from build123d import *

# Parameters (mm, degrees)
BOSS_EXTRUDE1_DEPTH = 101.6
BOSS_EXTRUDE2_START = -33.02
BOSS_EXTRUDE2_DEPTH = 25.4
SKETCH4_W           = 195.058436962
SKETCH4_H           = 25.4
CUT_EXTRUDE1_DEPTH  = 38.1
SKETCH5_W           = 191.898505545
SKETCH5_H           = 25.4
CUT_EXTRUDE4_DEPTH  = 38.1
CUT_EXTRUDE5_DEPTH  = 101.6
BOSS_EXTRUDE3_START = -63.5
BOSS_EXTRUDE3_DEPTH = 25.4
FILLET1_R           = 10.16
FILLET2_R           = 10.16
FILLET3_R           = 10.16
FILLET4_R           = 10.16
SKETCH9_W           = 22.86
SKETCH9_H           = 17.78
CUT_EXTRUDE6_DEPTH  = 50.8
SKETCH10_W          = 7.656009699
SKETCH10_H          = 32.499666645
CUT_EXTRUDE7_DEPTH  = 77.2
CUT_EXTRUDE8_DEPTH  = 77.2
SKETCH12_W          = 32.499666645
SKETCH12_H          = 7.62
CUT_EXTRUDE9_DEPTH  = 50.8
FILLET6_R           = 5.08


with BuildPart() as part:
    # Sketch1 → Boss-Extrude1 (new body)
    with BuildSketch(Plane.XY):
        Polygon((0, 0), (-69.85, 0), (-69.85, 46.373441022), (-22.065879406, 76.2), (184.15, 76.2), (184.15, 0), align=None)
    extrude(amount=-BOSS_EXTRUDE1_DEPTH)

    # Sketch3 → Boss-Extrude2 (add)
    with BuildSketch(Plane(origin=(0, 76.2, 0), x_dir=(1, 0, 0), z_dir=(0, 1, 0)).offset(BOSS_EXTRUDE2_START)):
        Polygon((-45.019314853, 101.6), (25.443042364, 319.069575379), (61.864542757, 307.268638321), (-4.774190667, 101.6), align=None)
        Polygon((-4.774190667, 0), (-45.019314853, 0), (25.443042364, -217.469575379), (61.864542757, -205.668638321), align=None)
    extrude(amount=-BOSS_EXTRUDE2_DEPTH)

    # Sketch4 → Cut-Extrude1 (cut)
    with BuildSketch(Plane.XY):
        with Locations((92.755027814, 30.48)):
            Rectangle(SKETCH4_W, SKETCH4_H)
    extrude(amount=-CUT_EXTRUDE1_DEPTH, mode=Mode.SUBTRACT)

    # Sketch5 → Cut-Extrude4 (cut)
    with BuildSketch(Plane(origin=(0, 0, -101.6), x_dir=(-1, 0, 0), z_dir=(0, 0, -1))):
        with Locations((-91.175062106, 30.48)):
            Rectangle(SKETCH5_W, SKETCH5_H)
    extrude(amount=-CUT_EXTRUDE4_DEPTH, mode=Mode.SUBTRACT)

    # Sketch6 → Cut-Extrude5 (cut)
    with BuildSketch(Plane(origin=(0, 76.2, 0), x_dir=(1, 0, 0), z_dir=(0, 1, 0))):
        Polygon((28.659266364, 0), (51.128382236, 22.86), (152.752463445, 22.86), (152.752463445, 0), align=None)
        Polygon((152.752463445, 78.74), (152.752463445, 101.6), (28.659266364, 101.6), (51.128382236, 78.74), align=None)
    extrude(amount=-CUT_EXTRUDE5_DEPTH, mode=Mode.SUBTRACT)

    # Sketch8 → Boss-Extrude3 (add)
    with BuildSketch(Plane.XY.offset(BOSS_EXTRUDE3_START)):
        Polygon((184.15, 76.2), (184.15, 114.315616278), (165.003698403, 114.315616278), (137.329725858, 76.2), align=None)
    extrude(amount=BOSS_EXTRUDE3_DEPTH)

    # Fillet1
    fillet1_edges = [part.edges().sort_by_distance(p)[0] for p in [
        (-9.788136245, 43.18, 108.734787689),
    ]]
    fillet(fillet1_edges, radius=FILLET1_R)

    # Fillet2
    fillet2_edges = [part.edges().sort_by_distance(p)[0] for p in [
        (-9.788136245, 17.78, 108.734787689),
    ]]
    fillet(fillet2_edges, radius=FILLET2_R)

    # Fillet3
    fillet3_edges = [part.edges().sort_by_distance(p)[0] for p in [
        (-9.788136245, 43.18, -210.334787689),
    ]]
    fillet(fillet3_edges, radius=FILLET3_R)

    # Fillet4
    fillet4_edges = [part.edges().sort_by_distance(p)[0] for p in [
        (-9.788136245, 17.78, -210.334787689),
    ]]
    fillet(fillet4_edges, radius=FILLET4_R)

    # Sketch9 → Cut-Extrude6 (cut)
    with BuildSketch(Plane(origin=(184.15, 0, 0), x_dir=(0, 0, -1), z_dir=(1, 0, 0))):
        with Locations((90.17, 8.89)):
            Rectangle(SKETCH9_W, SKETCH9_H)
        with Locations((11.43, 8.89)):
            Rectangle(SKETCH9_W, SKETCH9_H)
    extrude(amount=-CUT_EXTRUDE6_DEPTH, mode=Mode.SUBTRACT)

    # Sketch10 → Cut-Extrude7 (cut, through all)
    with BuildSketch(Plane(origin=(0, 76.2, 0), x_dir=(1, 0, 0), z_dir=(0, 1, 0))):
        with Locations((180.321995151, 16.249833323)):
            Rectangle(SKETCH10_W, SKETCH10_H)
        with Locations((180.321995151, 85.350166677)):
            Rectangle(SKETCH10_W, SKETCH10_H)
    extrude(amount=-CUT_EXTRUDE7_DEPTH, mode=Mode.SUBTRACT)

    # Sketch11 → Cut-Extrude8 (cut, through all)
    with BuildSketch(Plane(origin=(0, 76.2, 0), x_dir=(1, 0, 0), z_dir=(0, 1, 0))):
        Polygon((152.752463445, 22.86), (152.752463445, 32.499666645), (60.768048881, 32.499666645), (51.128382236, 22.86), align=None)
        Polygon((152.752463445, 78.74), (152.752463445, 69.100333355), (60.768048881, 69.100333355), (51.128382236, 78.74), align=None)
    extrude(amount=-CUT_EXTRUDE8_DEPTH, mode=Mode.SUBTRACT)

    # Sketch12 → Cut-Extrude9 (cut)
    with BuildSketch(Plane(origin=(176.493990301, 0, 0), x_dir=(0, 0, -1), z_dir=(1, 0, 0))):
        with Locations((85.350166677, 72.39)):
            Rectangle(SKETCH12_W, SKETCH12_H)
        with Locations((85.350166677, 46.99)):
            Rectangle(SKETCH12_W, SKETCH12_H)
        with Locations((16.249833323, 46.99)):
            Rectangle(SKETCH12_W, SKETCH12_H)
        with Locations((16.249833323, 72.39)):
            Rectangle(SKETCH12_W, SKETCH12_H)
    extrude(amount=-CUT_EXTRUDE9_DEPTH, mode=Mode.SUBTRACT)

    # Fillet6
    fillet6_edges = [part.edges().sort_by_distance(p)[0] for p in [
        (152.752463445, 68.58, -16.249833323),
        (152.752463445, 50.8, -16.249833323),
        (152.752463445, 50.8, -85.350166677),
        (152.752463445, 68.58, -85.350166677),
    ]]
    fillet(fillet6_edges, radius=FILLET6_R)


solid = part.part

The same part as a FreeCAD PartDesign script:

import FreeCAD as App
import Part
import Sketcher

V = App.Vector
Q = App.Units.Quantity


def edges_at(feature, points):
    """Names of the edges that pass closest to the given points."""
    edges = feature.Shape.Edges
    near = lambda p: min(range(len(edges)), key=lambda i: edges[i].distToShape(Part.Vertex(*p))[0])
    return sorted({f"Edge{near(p) + 1}" for p in points})


def add_polygon(sketch, points):
    """Adds a closed chain of lines whose ends are joined by coincident constraints."""
    first, n = sketch.GeometryCount, len(points)
    for a, b in zip(points, points[1:] + points[:1]):
        sketch.addGeometry(Part.LineSegment(App.Vector(*a, 0), App.Vector(*b, 0)), False)
    for i in range(n):
        sketch.addConstraint(Sketcher.Constraint("Coincident", first + i, 2, first + (i + 1) % n, 1))

doc = App.newDocument("Part")
body = doc.addObject("PartDesign::Body", "Body")

# Sketch on XY plane
sketch1 = body.newObject("Sketcher::SketchObject", "Sketch")
sketch1.AttachmentSupport = (doc.getObject("XY_Plane"), [""])
sketch1.MapMode = "FlatFace"
add_polygon(sketch1, [(-70, 0), (184, 0), (184, 76), (-22, 76), (-70, 46)])  # lines 0-4
sketch1.addConstraint([
    Sketcher.Constraint("Horizontal", 0),
    Sketcher.Constraint("Vertical", 1),
    Sketcher.Constraint("Horizontal", 2),
    Sketcher.Constraint("Vertical", 4),
    Sketcher.Constraint("PointOnObject", 0, 2, -1),
    Sketcher.Constraint("DistanceX", 0, 1, 0, 2, Q("10 in")),
    Sketcher.Constraint("DistanceY", 1, 1, 1, 2, Q("3 in")),
    Sketcher.Constraint("DistanceX", -1, 1, 0, 2, Q("7.25 in")),
    Sketcher.Constraint("DistanceX", 2, 2, 2, 1, Q("206.215879 mm")),
    Sketcher.Constraint("DistanceY", 4, 2, 4, 1, Q("46.373441 mm")),
])
pad1 = body.newObject("PartDesign::Pad", "Pad")
pad1.Profile = sketch1
pad1.Length = Q("4 in")
pad1.Reversed = True

# Sketch on XZ plane
sketch2 = body.newObject("Sketcher::SketchObject", "Sketch001")
sketch2.AttachmentSupport = (doc.getObject("XZ_Plane"), [""])
sketch2.MapMode = "FlatFace"
sketch2.AttachmentOffset = App.Placement(V(0, 0, -1.7 * 25.4), App.Rotation())
add_polygon(sketch2, [(25, -319), (-45, -102), (-5, -102), (62, -307)])  # lines 0-3
add_polygon(sketch2, [(-5, 0), (-45, 0), (25, 217), (62, 206)])  # lines 4-7
sketch2.addConstraint([
    Sketcher.Constraint("Horizontal", 1),
    Sketcher.Constraint("Horizontal", 4),
    Sketcher.Constraint("PointOnObject", 4, 2, -1),
    Sketcher.Constraint("Parallel", 0, 2),
    Sketcher.Constraint("Perpendicular", 2, 3),
    Sketcher.Constraint("Perpendicular", 5, 6),
    Sketcher.Constraint("Perpendicular", 6, 7),
    Sketcher.Constraint("Vertical", 0, 2, 4, 2),
    Sketcher.Constraint("Vertical", 3, 2, 5, 2),
    Sketcher.Constraint("Vertical", 2, 2, 6, 2),
    Sketcher.Constraint("Vertical", 1, 2, 7, 2),
    Sketcher.Constraint("Distance", 0, Q("9 in")),
    Sketcher.Constraint("DistanceY", 0, 2, -1, 1, Q("4 in")),
    Sketcher.Constraint("DistanceX", 3, 2, 2, 2, Q("36.4215 mm")),
    Sketcher.Constraint("Distance", 3, Q("38.285608 mm")),
    Sketcher.Constraint("DistanceX", 1, 2, -1, 1, Q("4.774191 mm")),
])
pad2 = body.newObject("PartDesign::Pad", "Pad001")
pad2.Profile = sketch2
pad2.Length = Q("1 in")

# Sketch on XY plane
sketch3 = body.newObject("Sketcher::SketchObject", "Sketch002")
sketch3.AttachmentSupport = (doc.getObject("XY_Plane"), [""])
sketch3.MapMode = "FlatFace"
add_polygon(sketch3, [(-5, 43), (-5, 18), (190, 18), (190, 43)])  # lines 0-3
sketch3.addConstraint([
    Sketcher.Constraint("Vertical", 0),
    Sketcher.Constraint("Horizontal", 1),
    Sketcher.Constraint("Vertical", 2),
    Sketcher.Constraint("Horizontal", 3),
    Sketcher.Constraint("DistanceY", 0, 2, 0, 1, Q("1 in")),
    Sketcher.Constraint("DistanceY", -1, 1, 0, 2, Q("0.7 in")),
    Sketcher.Constraint("DistanceX", 1, 1, 1, 2, Q("195.058437 mm")),
    Sketcher.Constraint("DistanceX", 0, 2, -1, 1, Q("4.774191 mm")),
])
pocket1 = body.newObject("PartDesign::Pocket", "Pocket")
pocket1.Profile = sketch3
pocket1.Length = Q("1.5 in")

# Sketch on XY plane
sketch4 = body.newObject("Sketcher::SketchObject", "Sketch003")
sketch4.AttachmentSupport = (doc.getObject("XY_Plane"), [""])
sketch4.MapMode = "FlatFace"
sketch4.AttachmentOffset = App.Placement(V(0, 0, -4 * 25.4), App.Rotation())
add_polygon(sketch4, [(187, 43), (187, 18), (-5, 18), (-5, 43)])  # lines 0-3
sketch4.addConstraint([
    Sketcher.Constraint("Vertical", 0),
    Sketcher.Constraint("Horizontal", 1),
    Sketcher.Constraint("Vertical", 2),
    Sketcher.Constraint("Horizontal", 3),
    Sketcher.Constraint("DistanceY", 0, 2, 0, 1, Q("1 in")),
    Sketcher.Constraint("DistanceY", -1, 1, 0, 2, Q("0.7 in")),
    Sketcher.Constraint("DistanceX", 1, 2, 1, 1, Q("191.898506 mm")),
    Sketcher.Constraint("DistanceX", 1, 2, -1, 1, Q("4.774191 mm")),
])
pocket2 = body.newObject("PartDesign::Pocket", "Pocket001")
pocket2.Profile = sketch4
pocket2.Length = Q("1.5 in")
pocket2.Reversed = True

# Sketch on XZ plane
sketch5 = body.newObject("Sketcher::SketchObject", "Sketch004")
sketch5.AttachmentSupport = (doc.getObject("XZ_Plane"), [""])
sketch5.MapMode = "FlatFace"
sketch5.AttachmentOffset = App.Placement(V(0, 0, -3 * 25.4), App.Rotation())
add_polygon(sketch5, [(51, -23), (29, 0), (153, 0), (153, -23)])  # lines 0-3
add_polygon(sketch5, [(153, -79), (153, -102), (29, -102), (51, -79)])  # lines 4-7
sketch5.addConstraint([
    Sketcher.Constraint("Horizontal", 1),
    Sketcher.Constraint("Vertical", 2),
    Sketcher.Constraint("Horizontal", 3),
    Sketcher.Constraint("Vertical", 4),
    Sketcher.Constraint("Horizontal", 5),
    Sketcher.Constraint("Horizontal", 7),
    Sketcher.Constraint("PointOnObject", 0, 2, -1),
    Sketcher.Constraint("Vertical", 2, 2, 4, 2),
    Sketcher.Constraint("Vertical", 0, 2, 5, 2),
    Sketcher.Constraint("Vertical", 3, 2, 6, 2),
    Sketcher.Constraint("Equal", 2, 4),
    Sketcher.Constraint("DistanceY", 2, 2, 2, 1, Q("0.9 in")),
    Sketcher.Constraint("DistanceY", 4, 2, -1, 1, Q("4 in")),
    Sketcher.Constraint("DistanceX", 3, 2, 3, 1, Q("101.624081 mm")),
    Sketcher.Constraint("DistanceX", 1, 1, 1, 2, Q("124.093197 mm")),
    Sketcher.Constraint("DistanceX", -1, 1, 0, 2, Q("28.659266 mm")),
])
pocket3 = body.newObject("PartDesign::Pocket", "Pocket002")
pocket3.Profile = sketch5
pocket3.Length = Q("4 in")
pocket3.Reversed = True

# Sketch on XY plane
sketch6 = body.newObject("Sketcher::SketchObject", "Sketch005")
sketch6.AttachmentSupport = (doc.getObject("XY_Plane"), [""])
sketch6.MapMode = "FlatFace"
sketch6.AttachmentOffset = App.Placement(V(0, 0, -2.5 * 25.4), App.Rotation())
add_polygon(sketch6, [(184, 76), (184, 114), (165, 114), (137, 76)])  # lines 0-3
sketch6.addConstraint([
    Sketcher.Constraint("Vertical", 0),
    Sketcher.Constraint("Horizontal", 1),
    Sketcher.Constraint("Horizontal", 3),
    Sketcher.Constraint("DistanceY", -1, 1, 2, 2, Q("3 in")),
    Sketcher.Constraint("DistanceX", -1, 1, 0, 2, Q("7.25 in")),
    Sketcher.Constraint("DistanceX", 1, 2, 1, 1, Q("19.146302 mm")),
    Sketcher.Constraint("DistanceX", 3, 1, 3, 2, Q("46.820274 mm")),
    Sketcher.Constraint("DistanceY", 0, 1, 0, 2, Q("38.115616 mm")),
])
pad3 = body.newObject("PartDesign::Pad", "Pad002")
pad3.Profile = sketch6
pad3.Length = Q("1 in")
doc.recompute()

fillet = body.newObject("PartDesign::Fillet", "Fillet")
fillet.Base = (pad3, edges_at(pad3, [(-9.788, 43.18, 108.735)]))
fillet.Radius = Q("0.4 in")
doc.recompute()

fillet2 = body.newObject("PartDesign::Fillet", "Fillet001")
fillet2.Base = (fillet, edges_at(fillet, [(-9.788, 17.78, 108.735)]))
fillet2.Radius = Q("0.4 in")
doc.recompute()

fillet3 = body.newObject("PartDesign::Fillet", "Fillet002")
fillet3.Base = (fillet2, edges_at(fillet2, [(-9.788, 43.18, -210.335)]))
fillet3.Radius = Q("0.4 in")
doc.recompute()

fillet4 = body.newObject("PartDesign::Fillet", "Fillet003")
fillet4.Base = (fillet3, edges_at(fillet3, [(-9.788, 17.78, -210.335)]))
fillet4.Radius = Q("0.4 in")

# Sketch on YZ plane
sketch7 = body.newObject("Sketcher::SketchObject", "Sketch006")
sketch7.AttachmentSupport = (doc.getObject("YZ_Plane"), [""])
sketch7.MapMode = "FlatFace"
sketch7.AttachmentOffset = App.Placement(V(0, 0, 7.25 * 25.4), App.Rotation())
add_polygon(sketch7, [(18, -79), (0, -79), (0, -102), (18, -102)])  # lines 0-3
add_polygon(sketch7, [(18, 0), (0, 0), (0, -23), (18, -23)])  # lines 4-7
sketch7.addConstraint([
    Sketcher.Constraint("Horizontal", 0),
    Sketcher.Constraint("Vertical", 1),
    Sketcher.Constraint("Horizontal", 2),
    Sketcher.Constraint("Vertical", 3),
    Sketcher.Constraint("Horizontal", 4),
    Sketcher.Constraint("Vertical", 5),
    Sketcher.Constraint("Horizontal", 6),
    Sketcher.Constraint("Vertical", 7),
    Sketcher.Constraint("Coincident", 4, 2, -1, 1),
    Sketcher.Constraint("PointOnObject", 0, 2, -2),
    Sketcher.Constraint("Vertical", 3, 2, 6, 2),
    Sketcher.Constraint("Equal", 3, 5),
    Sketcher.Constraint("DistanceX", 0, 2, 0, 1, Q("0.7 in")),
    Sketcher.Constraint("DistanceY", 1, 2, 1, 1, Q("0.9 in")),
    Sketcher.Constraint("DistanceY", 1, 2, -1, 1, Q("4 in")),
])
pocket4 = body.newObject("PartDesign::Pocket", "Pocket003")
pocket4.Profile = sketch7
pocket4.Length = Q("2 in")

# Sketch on XZ plane
sketch8 = body.newObject("Sketcher::SketchObject", "Sketch007")
sketch8.AttachmentSupport = (doc.getObject("XZ_Plane"), [""])
sketch8.MapMode = "FlatFace"
sketch8.AttachmentOffset = App.Placement(V(0, 0, -3 * 25.4), App.Rotation())
add_polygon(sketch8, [(176, -32), (176, 0), (184, 0), (184, -32)])  # lines 0-3
add_polygon(sketch8, [(176, -102), (176, -69), (184, -69), (184, -102)])  # lines 4-7
sketch8.addConstraint([
    Sketcher.Constraint("Vertical", 0),
    Sketcher.Constraint("Horizontal", 1),
    Sketcher.Constraint("Vertical", 2),
    Sketcher.Constraint("Horizontal", 3),
    Sketcher.Constraint("Vertical", 4),
    Sketcher.Constraint("Horizontal", 5),
    Sketcher.Constraint("Vertical", 6),
    Sketcher.Constraint("Horizontal", 7),
    Sketcher.Constraint("PointOnObject", 0, 2, -1),
    Sketcher.Constraint("Vertical", 3, 2, 4, 2),
    Sketcher.Constraint("Vertical", 2, 2, 5, 2),
    Sketcher.Constraint("Equal", 2, 4),
    Sketcher.Constraint("DistanceY", 6, 2, -1, 1, Q("4 in")),
    Sketcher.Constraint("DistanceX", -1, 1, 1, 2, Q("7.25 in")),
    Sketcher.Constraint("DistanceX", 1, 1, 1, 2, Q("7.65601 mm")),
    Sketcher.Constraint("DistanceY", 0, 1, 0, 2, Q("32.499667 mm")),
])
pocket5 = body.newObject("PartDesign::Pocket", "Pocket004")
pocket5.Profile = sketch8
pocket5.Type = "ThroughAll"
pocket5.Reversed = True

# Sketch on XZ plane
sketch9 = body.newObject("Sketcher::SketchObject", "Sketch008")
sketch9.AttachmentSupport = (doc.getObject("XZ_Plane"), [""])
sketch9.MapMode = "FlatFace"
sketch9.AttachmentOffset = App.Placement(V(0, 0, -3 * 25.4), App.Rotation())
add_polygon(sketch9, [(153, -23), (153, -32), (61, -32), (51, -23)])  # lines 0-3
add_polygon(sketch9, [(153, -69), (153, -79), (51, -79), (61, -69)])  # lines 4-7
sketch9.addConstraint([
    Sketcher.Constraint("Vertical", 0),
    Sketcher.Constraint("Horizontal", 1),
    Sketcher.Constraint("Horizontal", 3),
    Sketcher.Constraint("Vertical", 4),
    Sketcher.Constraint("Horizontal", 5),
    Sketcher.Constraint("Horizontal", 7),
    Sketcher.Constraint("Perpendicular", 2, 6),
    Sketcher.Constraint("Vertical", 3, 2, 4, 2),
    Sketcher.Constraint("Vertical", 2, 2, 5, 2),
    Sketcher.Constraint("Vertical", 1, 2, 6, 2),
    Sketcher.Constraint("Equal", 0, 4),
    Sketcher.Constraint("DistanceY", 2, 2, -1, 1, Q("0.9 in")),
    Sketcher.Constraint("DistanceY", 4, 2, -1, 1, Q("3.1 in")),
    Sketcher.Constraint("DistanceX", 3, 1, 3, 2, Q("101.624081 mm")),
    Sketcher.Constraint("DistanceX", 1, 2, 1, 1, Q("91.984415 mm")),
    Sketcher.Constraint("DistanceX", -1, 1, 1, 2, Q("60.768049 mm")),
])
pocket6 = body.newObject("PartDesign::Pocket", "Pocket005")
pocket6.Profile = sketch9
pocket6.Type = "ThroughAll"
pocket6.Reversed = True

# Sketch on YZ plane
sketch10 = body.newObject("Sketcher::SketchObject", "Sketch009")
sketch10.AttachmentSupport = (doc.getObject("YZ_Plane"), [""])
sketch10.MapMode = "FlatFace"
sketch10.AttachmentOffset = App.Placement(V(0, 0, 176.49399), App.Rotation())
add_polygon(sketch10, [(76, -69), (69, -69), (69, -102), (76, -102)])  # lines 0-3
add_polygon(sketch10, [(51, -69), (43, -69), (43, -102), (51, -102)])  # lines 4-7
add_polygon(sketch10, [(51, 0), (43, 0), (43, -32), (51, -32)])  # lines 8-11
add_polygon(sketch10, [(76, 0), (69, 0), (69, -32), (76, -32)])  # lines 12-15
sketch10.addConstraint([
    Sketcher.Constraint("Horizontal", 0),
    Sketcher.Constraint("Vertical", 1),
    Sketcher.Constraint("Horizontal", 2),
    Sketcher.Constraint("Vertical", 3),
    Sketcher.Constraint("Horizontal", 4),
    Sketcher.Constraint("Vertical", 5),
    Sketcher.Constraint("Horizontal", 6),
    Sketcher.Constraint("Vertical", 7),
    Sketcher.Constraint("Horizontal", 8),
    Sketcher.Constraint("Vertical", 9),
    Sketcher.Constraint("Horizontal", 10),
    Sketcher.Constraint("Vertical", 11),
    Sketcher.Constraint("Horizontal", 12),
    Sketcher.Constraint("Vertical", 13),
    Sketcher.Constraint("Horizontal", 14),
    Sketcher.Constraint("Vertical", 15),
    Sketcher.Constraint("PointOnObject", 8, 2, -1),
    Sketcher.Constraint("PointOnObject", 12, 2, -1),
    Sketcher.Constraint("Horizontal", 3, 2, 4, 2),
    Sketcher.Constraint("Horizontal", 2, 2, 5, 2),
    Sketcher.Constraint("Horizontal", 10, 2, 13, 2),
    Sketcher.Constraint("Vertical", 5, 2, 8, 2),
    Sketcher.Constraint("Vertical", 7, 2, 10, 2),
    Sketcher.Constraint("Vertical", 1, 2, 12, 2),
    Sketcher.Constraint("Vertical", 3, 2, 14, 2),
    Sketcher.Constraint("Equal", 2, 4),
    Sketcher.Constraint("Equal", 7, 9),
    Sketcher.Constraint("DistanceX", 0, 2, 0, 1, Q("0.3 in")),
    Sketcher.Constraint("DistanceY", 1, 2, -1, 1, Q("4 in")),
    Sketcher.Constraint("DistanceX", -1, 1, 2, 2, Q("3 in")),
    Sketcher.Constraint("DistanceX", -1, 1, 6, 2, Q("2 in")),
    Sketcher.Constraint("DistanceY", 1, 2, 1, 1, Q("32.499667 mm")),
])
pocket7 = body.newObject("PartDesign::Pocket", "Pocket006")
pocket7.Profile = sketch10
pocket7.Length = Q("2 in")
doc.recompute()

fillet5 = body.newObject("PartDesign::Fillet", "Fillet004")
fillet5.Base = (pocket7, edges_at(pocket7, [
    (152.752, 68.58, -16.25),
    (152.752, 50.8, -16.25),
    (152.752, 50.8, -85.35),
    (152.752, 68.58, -85.35),
]))
fillet5.Radius = Q("0.2 in")

doc.recompute()
